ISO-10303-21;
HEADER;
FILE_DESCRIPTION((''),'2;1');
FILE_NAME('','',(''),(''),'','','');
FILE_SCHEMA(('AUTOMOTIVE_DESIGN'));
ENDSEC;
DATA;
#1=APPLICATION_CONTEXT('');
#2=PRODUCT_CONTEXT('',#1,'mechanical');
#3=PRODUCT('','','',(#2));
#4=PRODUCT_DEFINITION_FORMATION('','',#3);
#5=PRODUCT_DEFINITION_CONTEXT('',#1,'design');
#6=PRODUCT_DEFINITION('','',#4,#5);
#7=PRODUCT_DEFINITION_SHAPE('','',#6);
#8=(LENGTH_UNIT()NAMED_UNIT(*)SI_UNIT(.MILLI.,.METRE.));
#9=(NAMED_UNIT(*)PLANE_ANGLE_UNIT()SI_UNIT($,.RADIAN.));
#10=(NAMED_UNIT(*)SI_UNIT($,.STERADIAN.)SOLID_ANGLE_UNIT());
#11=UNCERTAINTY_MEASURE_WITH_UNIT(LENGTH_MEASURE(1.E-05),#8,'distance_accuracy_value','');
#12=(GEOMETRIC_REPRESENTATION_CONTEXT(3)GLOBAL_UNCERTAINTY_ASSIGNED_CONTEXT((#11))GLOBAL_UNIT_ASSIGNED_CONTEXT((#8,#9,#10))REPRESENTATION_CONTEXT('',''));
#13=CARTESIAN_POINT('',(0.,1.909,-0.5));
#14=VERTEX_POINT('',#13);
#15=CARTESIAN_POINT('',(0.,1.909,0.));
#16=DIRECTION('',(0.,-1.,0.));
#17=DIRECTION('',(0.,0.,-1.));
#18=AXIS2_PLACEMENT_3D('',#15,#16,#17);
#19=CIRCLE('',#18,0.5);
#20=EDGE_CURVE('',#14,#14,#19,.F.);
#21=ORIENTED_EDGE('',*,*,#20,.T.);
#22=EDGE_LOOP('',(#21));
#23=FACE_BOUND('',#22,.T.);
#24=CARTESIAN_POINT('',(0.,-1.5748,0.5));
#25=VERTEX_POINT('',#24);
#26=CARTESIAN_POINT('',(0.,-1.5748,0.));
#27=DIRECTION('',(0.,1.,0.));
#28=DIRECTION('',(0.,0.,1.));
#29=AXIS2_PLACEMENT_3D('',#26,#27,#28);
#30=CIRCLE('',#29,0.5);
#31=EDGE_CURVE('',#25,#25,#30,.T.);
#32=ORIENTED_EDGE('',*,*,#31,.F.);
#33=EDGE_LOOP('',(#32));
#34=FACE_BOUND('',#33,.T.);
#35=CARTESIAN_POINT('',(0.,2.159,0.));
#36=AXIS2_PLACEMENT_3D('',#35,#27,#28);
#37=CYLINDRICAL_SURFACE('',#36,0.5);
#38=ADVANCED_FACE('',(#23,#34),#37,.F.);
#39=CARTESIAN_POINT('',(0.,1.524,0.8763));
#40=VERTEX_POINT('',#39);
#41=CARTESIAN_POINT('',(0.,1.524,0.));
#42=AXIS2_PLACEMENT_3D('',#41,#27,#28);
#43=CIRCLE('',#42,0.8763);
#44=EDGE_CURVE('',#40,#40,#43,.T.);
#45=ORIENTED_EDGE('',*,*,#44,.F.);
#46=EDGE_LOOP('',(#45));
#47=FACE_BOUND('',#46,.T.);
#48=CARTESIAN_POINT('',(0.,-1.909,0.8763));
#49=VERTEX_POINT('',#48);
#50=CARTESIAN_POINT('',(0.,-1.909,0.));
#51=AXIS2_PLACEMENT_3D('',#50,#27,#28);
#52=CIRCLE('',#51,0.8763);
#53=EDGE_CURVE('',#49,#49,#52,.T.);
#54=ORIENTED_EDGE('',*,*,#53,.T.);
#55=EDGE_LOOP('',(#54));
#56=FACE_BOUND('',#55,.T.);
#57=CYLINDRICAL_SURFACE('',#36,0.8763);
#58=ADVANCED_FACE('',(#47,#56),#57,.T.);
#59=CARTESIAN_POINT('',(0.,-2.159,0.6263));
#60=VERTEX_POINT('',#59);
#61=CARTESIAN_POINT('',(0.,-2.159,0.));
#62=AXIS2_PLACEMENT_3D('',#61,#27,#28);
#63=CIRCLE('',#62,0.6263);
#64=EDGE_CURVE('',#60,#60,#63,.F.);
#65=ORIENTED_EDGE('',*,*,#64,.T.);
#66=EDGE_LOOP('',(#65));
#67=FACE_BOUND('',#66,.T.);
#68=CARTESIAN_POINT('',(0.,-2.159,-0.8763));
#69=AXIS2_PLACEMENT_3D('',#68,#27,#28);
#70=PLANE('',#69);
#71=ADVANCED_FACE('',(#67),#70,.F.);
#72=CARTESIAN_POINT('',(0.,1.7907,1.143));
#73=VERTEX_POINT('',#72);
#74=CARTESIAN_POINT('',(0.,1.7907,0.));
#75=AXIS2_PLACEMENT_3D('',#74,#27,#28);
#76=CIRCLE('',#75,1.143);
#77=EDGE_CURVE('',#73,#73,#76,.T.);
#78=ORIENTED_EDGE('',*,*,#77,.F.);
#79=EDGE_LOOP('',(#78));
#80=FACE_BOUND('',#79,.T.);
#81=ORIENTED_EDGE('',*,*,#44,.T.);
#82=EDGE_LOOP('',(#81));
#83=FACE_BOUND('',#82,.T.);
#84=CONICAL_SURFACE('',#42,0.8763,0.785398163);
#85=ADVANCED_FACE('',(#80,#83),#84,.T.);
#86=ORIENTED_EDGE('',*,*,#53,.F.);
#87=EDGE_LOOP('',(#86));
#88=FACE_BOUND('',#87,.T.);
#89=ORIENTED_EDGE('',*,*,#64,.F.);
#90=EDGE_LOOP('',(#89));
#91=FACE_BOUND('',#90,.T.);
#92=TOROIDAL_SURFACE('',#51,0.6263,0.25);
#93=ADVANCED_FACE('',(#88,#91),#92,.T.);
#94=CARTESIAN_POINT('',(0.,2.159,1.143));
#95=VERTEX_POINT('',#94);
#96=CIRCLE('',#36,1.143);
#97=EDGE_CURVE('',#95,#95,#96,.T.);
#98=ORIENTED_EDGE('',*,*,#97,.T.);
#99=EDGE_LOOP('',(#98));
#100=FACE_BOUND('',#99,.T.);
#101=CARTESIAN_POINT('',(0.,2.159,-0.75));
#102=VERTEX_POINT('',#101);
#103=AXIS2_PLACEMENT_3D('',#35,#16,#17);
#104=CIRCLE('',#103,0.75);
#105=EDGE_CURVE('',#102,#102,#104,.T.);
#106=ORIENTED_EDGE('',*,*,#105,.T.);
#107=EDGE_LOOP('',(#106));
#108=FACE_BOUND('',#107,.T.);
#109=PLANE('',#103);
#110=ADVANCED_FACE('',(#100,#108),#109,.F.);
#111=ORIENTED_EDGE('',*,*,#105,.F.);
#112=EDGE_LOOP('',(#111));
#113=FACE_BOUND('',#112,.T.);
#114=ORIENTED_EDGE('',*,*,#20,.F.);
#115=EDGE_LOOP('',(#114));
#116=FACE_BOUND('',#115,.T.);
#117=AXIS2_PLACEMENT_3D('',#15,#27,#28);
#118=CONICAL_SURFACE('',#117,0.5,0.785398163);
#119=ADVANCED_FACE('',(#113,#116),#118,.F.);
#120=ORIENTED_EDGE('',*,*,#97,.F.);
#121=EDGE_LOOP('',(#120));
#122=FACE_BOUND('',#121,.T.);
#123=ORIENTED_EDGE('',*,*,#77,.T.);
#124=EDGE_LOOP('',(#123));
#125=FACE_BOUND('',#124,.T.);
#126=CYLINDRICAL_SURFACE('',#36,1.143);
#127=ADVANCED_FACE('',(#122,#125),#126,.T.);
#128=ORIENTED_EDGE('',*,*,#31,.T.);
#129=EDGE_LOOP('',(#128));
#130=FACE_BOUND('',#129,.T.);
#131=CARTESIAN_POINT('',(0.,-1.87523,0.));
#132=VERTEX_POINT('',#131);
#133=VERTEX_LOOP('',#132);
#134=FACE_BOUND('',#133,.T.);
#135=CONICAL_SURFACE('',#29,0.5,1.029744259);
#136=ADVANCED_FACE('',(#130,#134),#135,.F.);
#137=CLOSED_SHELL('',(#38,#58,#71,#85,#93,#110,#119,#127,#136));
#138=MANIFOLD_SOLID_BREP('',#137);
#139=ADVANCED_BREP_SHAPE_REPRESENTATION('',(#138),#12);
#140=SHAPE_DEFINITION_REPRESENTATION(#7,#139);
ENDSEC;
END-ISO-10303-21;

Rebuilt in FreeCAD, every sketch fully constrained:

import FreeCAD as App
import Part
import Sketcher
Q = App.Units.Quantity


def edges_at(feature, points):
    """Names of the edges that pass closest to the given points."""
    edges = feature.Shape.Edges
    near = lambda p: min(range(len(edges)), key=lambda i: edges[i].distToShape(Part.Vertex(*p))[0])
    return sorted({f"Edge{near(p) + 1}" for p in points})

doc = App.newDocument("Part")
params = doc.addObject("Spreadsheet::Sheet", "Params")
for row, (alias, value) in enumerate([
    ("sketch1_width", "0.17 in"),
    ("sketch1_width2", "0.145 in"),
    ("sketch1_height", "0.045 in"),
    ("revolution_angle", "360 deg"),
    ("hole_diameter", "1 mm"),
    ("hole_depth", "0.147 in"),
    ("fillet_radius", "0.25 mm"),
    ("chamfer_size", "0.25 mm"),
], start=1):
    params.set(f"A{row}", alias)
    params.set(f"B{row}", "=" + value)
    params.setAlias(f"B{row}", alias)

body = doc.addObject("PartDesign::Body", "Body")

# Sketch on YZ plane
sketch1 = body.newObject("Sketcher::SketchObject", "Sketch")
sketch1.AttachmentSupport = (doc.getObject("YZ_Plane"), [""])
sketch1.MapMode = "FlatFace"
sketch1.addGeometry(Part.LineSegment(App.Vector(2.16, -1.14, 0), App.Vector(2.16, 0, 0)), False)
sketch1.addGeometry(Part.LineSegment(App.Vector(2.16, 0, 0), App.Vector(-2.16, 0, 0)), False)
sketch1.addGeometry(Part.LineSegment(App.Vector(-2.16, 0, 0), App.Vector(-2.16, -0.88, 0)), False)
sketch1.addGeometry(Part.LineSegment(App.Vector(-2.16, -0.88, 0), App.Vector(1.52, -0.88, 0)), False)
sketch1.addGeometry(Part.LineSegment(App.Vector(1.52, -0.88, 0), App.Vector(1.79, -1.14, 0)), False)
sketch1.addGeometry(Part.LineSegment(App.Vector(1.79, -1.14, 0), App.Vector(2.16, -1.14, 0)), False)
sketch1.addConstraint(Sketcher.Constraint("Coincident", 0, 2, 1, 1))
sketch1.addConstraint(Sketcher.Constraint("Coincident", 1, 2, 2, 1))
sketch1.addConstraint(Sketcher.Constraint("Coincident", 2, 2, 3, 1))
sketch1.addConstraint(Sketcher.Constraint("Coincident", 3, 2, 4, 1))
sketch1.addConstraint(Sketcher.Constraint("Coincident", 4, 2, 5, 1))
sketch1.addConstraint(Sketcher.Constraint("Coincident", 5, 2, 0, 1))
sketch1.addConstraint(Sketcher.Constraint("Vertical", 0))
sketch1.addConstraint(Sketcher.Constraint("Horizontal", 1))
sketch1.addConstraint(Sketcher.Constraint("Vertical", 2))
sketch1.addConstraint(Sketcher.Constraint("Horizontal", 3))
sketch1.addConstraint(Sketcher.Constraint("Horizontal", 5))
sketch1.addConstraint(Sketcher.Constraint("Symmetric", 0, 2, 1, 2, -1, 1))
sketch1.addConstraint(Sketcher.Constraint("Angle", 4, Q("-45 deg")))
sketch1.addConstraint(Sketcher.Constraint("DistanceX", 1, 2, 1, 1, Q("0.17 in")))
sketch1.addConstraint(Sketcher.Constraint("DistanceX", 3, 1, 3, 2, Q("0.145 in")))
sketch1.addConstraint(Sketcher.Constraint("DistanceY", 0, 1, 0, 2, Q("0.045 in")))
sketch1.addConstraint(Sketcher.Constraint("DistanceX", 5, 1, 5, 2, Q("0.0145 in")))
sketch1.setExpression("Constraints[13]", "Params.sketch1_width")
sketch1.setExpression("Constraints[14]", "Params.sketch1_width2")
sketch1.setExpression("Constraints[15]", "Params.sketch1_height")
revolution = body.newObject("PartDesign::Revolution", "Revolution")
revolution.Profile = sketch1
revolution.ReferenceAxis = (sketch1, ["H_Axis"])
revolution.setExpression("Angle", "Params.revolution_angle")

# Sketch on XZ plane
sketch2 = body.newObject("Sketcher::SketchObject", "Sketch001")
sketch2.AttachmentSupport = (doc.getObject("XZ_Plane"), [""])
sketch2.MapMode = "FlatFace"
sketch2.AttachmentOffset = App.Placement(App.Vector(0, 0, -0.085 * 25.4), App.Rotation())
sketch2.addGeometry(Part.Circle(App.Vector(0, 0, 0), App.Vector(0, 0, 1), 0.5), False)
sketch2.addConstraint(Sketcher.Constraint("Coincident", 0, 3, -1, 1))
sketch2.addConstraint(Sketcher.Constraint("Diameter", 0, Q("1 mm")))
doc.recompute()
hole = body.newObject("PartDesign::Hole", "Hole")
hole.Profile = sketch2
hole.ThreadType = "None"
hole.setExpression("Diameter", "Params.hole_diameter")
hole.DepthType = "Dimension"
hole.setExpression("Depth", "Params.hole_depth")
hole.DrillPoint = "Angled"
hole.DrillPointAngle = 118
hole.Reversed = True
doc.recompute()

fillet = body.newObject("PartDesign::Fillet", "Fillet")
fillet.Base = (hole, edges_at(hole, [(0, -2.159, 0.876)]))
fillet.setExpression("Radius", "Params.fillet_radius")
doc.recompute()

chamfer = body.newObject("PartDesign::Chamfer", "Chamfer")
chamfer.Base = (fillet, edges_at(fillet, [(0, 2.159, 0.5)]))
chamfer.setExpression("Size", "Params.chamfer_size")

doc.recompute()
